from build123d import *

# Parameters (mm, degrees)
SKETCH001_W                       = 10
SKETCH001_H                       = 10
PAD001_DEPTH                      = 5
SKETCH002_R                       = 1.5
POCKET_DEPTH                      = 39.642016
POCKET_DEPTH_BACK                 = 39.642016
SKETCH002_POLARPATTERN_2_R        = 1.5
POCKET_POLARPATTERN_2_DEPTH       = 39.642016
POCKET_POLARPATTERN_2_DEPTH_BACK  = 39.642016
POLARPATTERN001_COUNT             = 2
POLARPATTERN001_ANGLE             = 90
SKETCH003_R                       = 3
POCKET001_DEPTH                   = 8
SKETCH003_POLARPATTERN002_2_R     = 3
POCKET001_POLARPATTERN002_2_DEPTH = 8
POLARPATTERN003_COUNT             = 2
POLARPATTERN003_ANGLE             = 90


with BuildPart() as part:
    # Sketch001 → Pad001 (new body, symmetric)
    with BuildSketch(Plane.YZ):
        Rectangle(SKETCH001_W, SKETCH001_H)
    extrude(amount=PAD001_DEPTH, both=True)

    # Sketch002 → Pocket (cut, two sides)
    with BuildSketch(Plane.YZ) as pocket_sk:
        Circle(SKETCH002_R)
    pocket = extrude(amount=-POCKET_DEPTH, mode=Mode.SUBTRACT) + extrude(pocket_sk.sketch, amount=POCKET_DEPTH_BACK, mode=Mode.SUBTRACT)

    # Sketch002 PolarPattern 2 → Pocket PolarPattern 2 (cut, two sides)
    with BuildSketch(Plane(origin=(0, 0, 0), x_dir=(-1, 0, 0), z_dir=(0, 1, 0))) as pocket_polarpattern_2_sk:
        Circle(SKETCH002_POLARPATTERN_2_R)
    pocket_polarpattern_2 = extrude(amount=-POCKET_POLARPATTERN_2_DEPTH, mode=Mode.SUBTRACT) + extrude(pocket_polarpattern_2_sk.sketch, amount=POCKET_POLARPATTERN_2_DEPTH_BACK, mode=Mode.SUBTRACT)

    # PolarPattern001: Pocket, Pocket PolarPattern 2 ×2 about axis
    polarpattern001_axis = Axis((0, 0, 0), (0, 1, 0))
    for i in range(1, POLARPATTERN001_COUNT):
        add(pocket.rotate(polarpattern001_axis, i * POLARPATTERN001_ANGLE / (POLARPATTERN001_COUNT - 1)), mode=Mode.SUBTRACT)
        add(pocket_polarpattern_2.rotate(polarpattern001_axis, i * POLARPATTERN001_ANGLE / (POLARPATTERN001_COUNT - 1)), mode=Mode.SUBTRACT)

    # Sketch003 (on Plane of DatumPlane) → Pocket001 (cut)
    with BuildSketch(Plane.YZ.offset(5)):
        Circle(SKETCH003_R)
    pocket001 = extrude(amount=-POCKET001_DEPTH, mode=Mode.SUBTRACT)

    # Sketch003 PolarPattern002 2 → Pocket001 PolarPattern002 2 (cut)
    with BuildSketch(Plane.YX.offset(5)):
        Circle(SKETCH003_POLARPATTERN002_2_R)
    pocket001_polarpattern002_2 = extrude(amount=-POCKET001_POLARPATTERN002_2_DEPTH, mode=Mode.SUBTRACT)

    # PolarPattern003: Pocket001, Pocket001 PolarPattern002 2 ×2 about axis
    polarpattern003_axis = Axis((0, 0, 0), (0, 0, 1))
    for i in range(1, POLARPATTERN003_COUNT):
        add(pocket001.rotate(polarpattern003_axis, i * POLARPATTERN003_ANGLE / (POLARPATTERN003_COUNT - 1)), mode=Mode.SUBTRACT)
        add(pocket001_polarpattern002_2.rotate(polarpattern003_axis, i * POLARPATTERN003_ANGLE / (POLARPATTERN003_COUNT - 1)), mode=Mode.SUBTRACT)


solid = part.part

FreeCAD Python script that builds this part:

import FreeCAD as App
import Part
import Sketcher


def add_polygon(sketch, points):
    """Adds a closed chain of lines whose ends are joined by coincident constraints."""
    first, n = sketch.GeometryCount, len(points)
    for a, b in zip(points, points[1:] + points[:1]):
        sketch.addGeometry(Part.LineSegment(App.Vector(*a, 0), App.Vector(*b, 0)), False)
    for i in range(n):
        sketch.addConstraint(Sketcher.Constraint("Coincident", first + i, 2, first + (i + 1) % n, 1))

doc = App.newDocument("Part")
body = doc.addObject("PartDesign::Body", "Body")

# Sketch on YZ plane
sketch1 = doc.addObject("Sketcher::SketchObject", "Sketch")
body.addObject(sketch1)
sketch1.AttachmentSupport = (doc.YZ_Plane, [""])
sketch1.MapMode = "FlatFace"
add_polygon(sketch1, [(-5, 5), (-5, -5), (5, -5), (5, 5)])  # lines 0-3
sketch1.addConstraint([
    Sketcher.Constraint("Vertical", 0),
    Sketcher.Constraint("Horizontal", 1),
    Sketcher.Constraint("Vertical", 2),
    Sketcher.Constraint("Horizontal", 3),
    Sketcher.Constraint("Symmetric", 0, 2, 2, 2, -1, 1),
    Sketcher.Constraint("Equal", 3, 0),
    Sketcher.Constraint("DistanceX", 1, 1, 1, 2, 10.0),
])
pad1 = doc.addObject("PartDesign::Pad", "Pad")
body.addObject(pad1)
pad1.Profile = sketch1
pad1.Length = 10
pad1.Midplane = True

# Sketch on YZ plane
sketch2 = doc.addObject("Sketcher::SketchObject", "Sketch001")
body.addObject(sketch2)
sketch2.AttachmentSupport = (doc.YZ_Plane, [""])
sketch2.MapMode = "FlatFace"
sketch2.addGeometry(Part.Circle(App.Vector(0, 0, 0), App.Vector(0, 0, 1), 1.5), False)
sketch2.addConstraint([
    Sketcher.Constraint("Coincident", 0, 3, -1, 1),
    Sketcher.Constraint("Diameter", 0, 3.0),
])
pocket1 = doc.addObject("PartDesign::Pocket", "Pocket")
body.addObject(pocket1)
pocket1.Profile = sketch2
pocket1.Type = "ThroughAll"
pocket1.Midplane = True

# Sketch on XZ plane
sketch3 = doc.addObject("Sketcher::SketchObject", "Sketch002")
body.addObject(sketch3)
sketch3.AttachmentSupport = (doc.XZ_Plane, [""])
sketch3.MapMode = "FlatFace"
sketch3.addGeometry(Part.Circle(App.Vector(0, 0, 0), App.Vector(0, 0, 1), 1.5), False)
sketch3.addConstraint([
    Sketcher.Constraint("Coincident", 0, 3, -1, 1),
    Sketcher.Constraint("Diameter", 0, 3.0),
])
pocket2 = doc.addObject("PartDesign::Pocket", "Pocket001")
body.addObject(pocket2)
pocket2.Profile = sketch3
pocket2.Type = "ThroughAll"
pocket2.Midplane = True
doc.recompute()

polarpattern = doc.addObject("PartDesign::PolarPattern", "PolarPattern")
body.addObject(polarpattern)
polarpattern.Originals = [pocket1, pocket2]
polarpattern.Axis = (doc.Y_Axis, [""])
polarpattern.Angle = 90
polarpattern.Occurrences = 2
body.Tip = polarpattern

# Sketch on YZ plane
sketch4 = doc.addObject("Sketcher::SketchObject", "Sketch003")
body.addObject(sketch4)
sketch4.AttachmentSupport = (doc.YZ_Plane, [""])
sketch4.MapMode = "FlatFace"
sketch4.AttachmentOffset = App.Placement(App.Vector(0, 0, 5), App.Rotation())
sketch4.addGeometry(Part.Circle(App.Vector(0, 0, 0), App.Vector(0, 0, 1), 3), False)
sketch4.addConstraint([
    Sketcher.Constraint("Coincident", 0, 3, -1, 1),
    Sketcher.Constraint("Diameter", 0, 6.0),
])
pocket3 = doc.addObject("PartDesign::Pocket", "Pocket002")
body.addObject(pocket3)
pocket3.Profile = sketch4
pocket3.Length = 8

# Sketch on XY plane
sketch5 = doc.addObject("Sketcher::SketchObject", "Sketch004")
body.addObject(sketch5)
sketch5.AttachmentSupport = (doc.XY_Plane, [""])
sketch5.MapMode = "FlatFace"
sketch5.AttachmentOffset = App.Placement(App.Vector(0, 0, -5), App.Rotation())
sketch5.addGeometry(Part.Circle(App.Vector(0, 0, 0), App.Vector(0, 0, 1), 3), False)
sketch5.addConstraint([
    Sketcher.Constraint("Coincident", 0, 3, -1, 1),
    Sketcher.Constraint("Diameter", 0, 6.0),
])
pocket4 = doc.addObject("PartDesign::Pocket", "Pocket003")
body.addObject(pocket4)
pocket4.Profile = sketch5
pocket4.Length = 8
pocket4.Reversed = True
doc.recompute()

polarpattern2 = doc.addObject("PartDesign::PolarPattern", "PolarPattern001")
body.addObject(polarpattern2)
polarpattern2.Originals = [pocket3, pocket4]
polarpattern2.Axis = (doc.Z_Axis, [""])
polarpattern2.Angle = 90
polarpattern2.Occurrences = 2
body.Tip = polarpattern2

doc.recompute()
